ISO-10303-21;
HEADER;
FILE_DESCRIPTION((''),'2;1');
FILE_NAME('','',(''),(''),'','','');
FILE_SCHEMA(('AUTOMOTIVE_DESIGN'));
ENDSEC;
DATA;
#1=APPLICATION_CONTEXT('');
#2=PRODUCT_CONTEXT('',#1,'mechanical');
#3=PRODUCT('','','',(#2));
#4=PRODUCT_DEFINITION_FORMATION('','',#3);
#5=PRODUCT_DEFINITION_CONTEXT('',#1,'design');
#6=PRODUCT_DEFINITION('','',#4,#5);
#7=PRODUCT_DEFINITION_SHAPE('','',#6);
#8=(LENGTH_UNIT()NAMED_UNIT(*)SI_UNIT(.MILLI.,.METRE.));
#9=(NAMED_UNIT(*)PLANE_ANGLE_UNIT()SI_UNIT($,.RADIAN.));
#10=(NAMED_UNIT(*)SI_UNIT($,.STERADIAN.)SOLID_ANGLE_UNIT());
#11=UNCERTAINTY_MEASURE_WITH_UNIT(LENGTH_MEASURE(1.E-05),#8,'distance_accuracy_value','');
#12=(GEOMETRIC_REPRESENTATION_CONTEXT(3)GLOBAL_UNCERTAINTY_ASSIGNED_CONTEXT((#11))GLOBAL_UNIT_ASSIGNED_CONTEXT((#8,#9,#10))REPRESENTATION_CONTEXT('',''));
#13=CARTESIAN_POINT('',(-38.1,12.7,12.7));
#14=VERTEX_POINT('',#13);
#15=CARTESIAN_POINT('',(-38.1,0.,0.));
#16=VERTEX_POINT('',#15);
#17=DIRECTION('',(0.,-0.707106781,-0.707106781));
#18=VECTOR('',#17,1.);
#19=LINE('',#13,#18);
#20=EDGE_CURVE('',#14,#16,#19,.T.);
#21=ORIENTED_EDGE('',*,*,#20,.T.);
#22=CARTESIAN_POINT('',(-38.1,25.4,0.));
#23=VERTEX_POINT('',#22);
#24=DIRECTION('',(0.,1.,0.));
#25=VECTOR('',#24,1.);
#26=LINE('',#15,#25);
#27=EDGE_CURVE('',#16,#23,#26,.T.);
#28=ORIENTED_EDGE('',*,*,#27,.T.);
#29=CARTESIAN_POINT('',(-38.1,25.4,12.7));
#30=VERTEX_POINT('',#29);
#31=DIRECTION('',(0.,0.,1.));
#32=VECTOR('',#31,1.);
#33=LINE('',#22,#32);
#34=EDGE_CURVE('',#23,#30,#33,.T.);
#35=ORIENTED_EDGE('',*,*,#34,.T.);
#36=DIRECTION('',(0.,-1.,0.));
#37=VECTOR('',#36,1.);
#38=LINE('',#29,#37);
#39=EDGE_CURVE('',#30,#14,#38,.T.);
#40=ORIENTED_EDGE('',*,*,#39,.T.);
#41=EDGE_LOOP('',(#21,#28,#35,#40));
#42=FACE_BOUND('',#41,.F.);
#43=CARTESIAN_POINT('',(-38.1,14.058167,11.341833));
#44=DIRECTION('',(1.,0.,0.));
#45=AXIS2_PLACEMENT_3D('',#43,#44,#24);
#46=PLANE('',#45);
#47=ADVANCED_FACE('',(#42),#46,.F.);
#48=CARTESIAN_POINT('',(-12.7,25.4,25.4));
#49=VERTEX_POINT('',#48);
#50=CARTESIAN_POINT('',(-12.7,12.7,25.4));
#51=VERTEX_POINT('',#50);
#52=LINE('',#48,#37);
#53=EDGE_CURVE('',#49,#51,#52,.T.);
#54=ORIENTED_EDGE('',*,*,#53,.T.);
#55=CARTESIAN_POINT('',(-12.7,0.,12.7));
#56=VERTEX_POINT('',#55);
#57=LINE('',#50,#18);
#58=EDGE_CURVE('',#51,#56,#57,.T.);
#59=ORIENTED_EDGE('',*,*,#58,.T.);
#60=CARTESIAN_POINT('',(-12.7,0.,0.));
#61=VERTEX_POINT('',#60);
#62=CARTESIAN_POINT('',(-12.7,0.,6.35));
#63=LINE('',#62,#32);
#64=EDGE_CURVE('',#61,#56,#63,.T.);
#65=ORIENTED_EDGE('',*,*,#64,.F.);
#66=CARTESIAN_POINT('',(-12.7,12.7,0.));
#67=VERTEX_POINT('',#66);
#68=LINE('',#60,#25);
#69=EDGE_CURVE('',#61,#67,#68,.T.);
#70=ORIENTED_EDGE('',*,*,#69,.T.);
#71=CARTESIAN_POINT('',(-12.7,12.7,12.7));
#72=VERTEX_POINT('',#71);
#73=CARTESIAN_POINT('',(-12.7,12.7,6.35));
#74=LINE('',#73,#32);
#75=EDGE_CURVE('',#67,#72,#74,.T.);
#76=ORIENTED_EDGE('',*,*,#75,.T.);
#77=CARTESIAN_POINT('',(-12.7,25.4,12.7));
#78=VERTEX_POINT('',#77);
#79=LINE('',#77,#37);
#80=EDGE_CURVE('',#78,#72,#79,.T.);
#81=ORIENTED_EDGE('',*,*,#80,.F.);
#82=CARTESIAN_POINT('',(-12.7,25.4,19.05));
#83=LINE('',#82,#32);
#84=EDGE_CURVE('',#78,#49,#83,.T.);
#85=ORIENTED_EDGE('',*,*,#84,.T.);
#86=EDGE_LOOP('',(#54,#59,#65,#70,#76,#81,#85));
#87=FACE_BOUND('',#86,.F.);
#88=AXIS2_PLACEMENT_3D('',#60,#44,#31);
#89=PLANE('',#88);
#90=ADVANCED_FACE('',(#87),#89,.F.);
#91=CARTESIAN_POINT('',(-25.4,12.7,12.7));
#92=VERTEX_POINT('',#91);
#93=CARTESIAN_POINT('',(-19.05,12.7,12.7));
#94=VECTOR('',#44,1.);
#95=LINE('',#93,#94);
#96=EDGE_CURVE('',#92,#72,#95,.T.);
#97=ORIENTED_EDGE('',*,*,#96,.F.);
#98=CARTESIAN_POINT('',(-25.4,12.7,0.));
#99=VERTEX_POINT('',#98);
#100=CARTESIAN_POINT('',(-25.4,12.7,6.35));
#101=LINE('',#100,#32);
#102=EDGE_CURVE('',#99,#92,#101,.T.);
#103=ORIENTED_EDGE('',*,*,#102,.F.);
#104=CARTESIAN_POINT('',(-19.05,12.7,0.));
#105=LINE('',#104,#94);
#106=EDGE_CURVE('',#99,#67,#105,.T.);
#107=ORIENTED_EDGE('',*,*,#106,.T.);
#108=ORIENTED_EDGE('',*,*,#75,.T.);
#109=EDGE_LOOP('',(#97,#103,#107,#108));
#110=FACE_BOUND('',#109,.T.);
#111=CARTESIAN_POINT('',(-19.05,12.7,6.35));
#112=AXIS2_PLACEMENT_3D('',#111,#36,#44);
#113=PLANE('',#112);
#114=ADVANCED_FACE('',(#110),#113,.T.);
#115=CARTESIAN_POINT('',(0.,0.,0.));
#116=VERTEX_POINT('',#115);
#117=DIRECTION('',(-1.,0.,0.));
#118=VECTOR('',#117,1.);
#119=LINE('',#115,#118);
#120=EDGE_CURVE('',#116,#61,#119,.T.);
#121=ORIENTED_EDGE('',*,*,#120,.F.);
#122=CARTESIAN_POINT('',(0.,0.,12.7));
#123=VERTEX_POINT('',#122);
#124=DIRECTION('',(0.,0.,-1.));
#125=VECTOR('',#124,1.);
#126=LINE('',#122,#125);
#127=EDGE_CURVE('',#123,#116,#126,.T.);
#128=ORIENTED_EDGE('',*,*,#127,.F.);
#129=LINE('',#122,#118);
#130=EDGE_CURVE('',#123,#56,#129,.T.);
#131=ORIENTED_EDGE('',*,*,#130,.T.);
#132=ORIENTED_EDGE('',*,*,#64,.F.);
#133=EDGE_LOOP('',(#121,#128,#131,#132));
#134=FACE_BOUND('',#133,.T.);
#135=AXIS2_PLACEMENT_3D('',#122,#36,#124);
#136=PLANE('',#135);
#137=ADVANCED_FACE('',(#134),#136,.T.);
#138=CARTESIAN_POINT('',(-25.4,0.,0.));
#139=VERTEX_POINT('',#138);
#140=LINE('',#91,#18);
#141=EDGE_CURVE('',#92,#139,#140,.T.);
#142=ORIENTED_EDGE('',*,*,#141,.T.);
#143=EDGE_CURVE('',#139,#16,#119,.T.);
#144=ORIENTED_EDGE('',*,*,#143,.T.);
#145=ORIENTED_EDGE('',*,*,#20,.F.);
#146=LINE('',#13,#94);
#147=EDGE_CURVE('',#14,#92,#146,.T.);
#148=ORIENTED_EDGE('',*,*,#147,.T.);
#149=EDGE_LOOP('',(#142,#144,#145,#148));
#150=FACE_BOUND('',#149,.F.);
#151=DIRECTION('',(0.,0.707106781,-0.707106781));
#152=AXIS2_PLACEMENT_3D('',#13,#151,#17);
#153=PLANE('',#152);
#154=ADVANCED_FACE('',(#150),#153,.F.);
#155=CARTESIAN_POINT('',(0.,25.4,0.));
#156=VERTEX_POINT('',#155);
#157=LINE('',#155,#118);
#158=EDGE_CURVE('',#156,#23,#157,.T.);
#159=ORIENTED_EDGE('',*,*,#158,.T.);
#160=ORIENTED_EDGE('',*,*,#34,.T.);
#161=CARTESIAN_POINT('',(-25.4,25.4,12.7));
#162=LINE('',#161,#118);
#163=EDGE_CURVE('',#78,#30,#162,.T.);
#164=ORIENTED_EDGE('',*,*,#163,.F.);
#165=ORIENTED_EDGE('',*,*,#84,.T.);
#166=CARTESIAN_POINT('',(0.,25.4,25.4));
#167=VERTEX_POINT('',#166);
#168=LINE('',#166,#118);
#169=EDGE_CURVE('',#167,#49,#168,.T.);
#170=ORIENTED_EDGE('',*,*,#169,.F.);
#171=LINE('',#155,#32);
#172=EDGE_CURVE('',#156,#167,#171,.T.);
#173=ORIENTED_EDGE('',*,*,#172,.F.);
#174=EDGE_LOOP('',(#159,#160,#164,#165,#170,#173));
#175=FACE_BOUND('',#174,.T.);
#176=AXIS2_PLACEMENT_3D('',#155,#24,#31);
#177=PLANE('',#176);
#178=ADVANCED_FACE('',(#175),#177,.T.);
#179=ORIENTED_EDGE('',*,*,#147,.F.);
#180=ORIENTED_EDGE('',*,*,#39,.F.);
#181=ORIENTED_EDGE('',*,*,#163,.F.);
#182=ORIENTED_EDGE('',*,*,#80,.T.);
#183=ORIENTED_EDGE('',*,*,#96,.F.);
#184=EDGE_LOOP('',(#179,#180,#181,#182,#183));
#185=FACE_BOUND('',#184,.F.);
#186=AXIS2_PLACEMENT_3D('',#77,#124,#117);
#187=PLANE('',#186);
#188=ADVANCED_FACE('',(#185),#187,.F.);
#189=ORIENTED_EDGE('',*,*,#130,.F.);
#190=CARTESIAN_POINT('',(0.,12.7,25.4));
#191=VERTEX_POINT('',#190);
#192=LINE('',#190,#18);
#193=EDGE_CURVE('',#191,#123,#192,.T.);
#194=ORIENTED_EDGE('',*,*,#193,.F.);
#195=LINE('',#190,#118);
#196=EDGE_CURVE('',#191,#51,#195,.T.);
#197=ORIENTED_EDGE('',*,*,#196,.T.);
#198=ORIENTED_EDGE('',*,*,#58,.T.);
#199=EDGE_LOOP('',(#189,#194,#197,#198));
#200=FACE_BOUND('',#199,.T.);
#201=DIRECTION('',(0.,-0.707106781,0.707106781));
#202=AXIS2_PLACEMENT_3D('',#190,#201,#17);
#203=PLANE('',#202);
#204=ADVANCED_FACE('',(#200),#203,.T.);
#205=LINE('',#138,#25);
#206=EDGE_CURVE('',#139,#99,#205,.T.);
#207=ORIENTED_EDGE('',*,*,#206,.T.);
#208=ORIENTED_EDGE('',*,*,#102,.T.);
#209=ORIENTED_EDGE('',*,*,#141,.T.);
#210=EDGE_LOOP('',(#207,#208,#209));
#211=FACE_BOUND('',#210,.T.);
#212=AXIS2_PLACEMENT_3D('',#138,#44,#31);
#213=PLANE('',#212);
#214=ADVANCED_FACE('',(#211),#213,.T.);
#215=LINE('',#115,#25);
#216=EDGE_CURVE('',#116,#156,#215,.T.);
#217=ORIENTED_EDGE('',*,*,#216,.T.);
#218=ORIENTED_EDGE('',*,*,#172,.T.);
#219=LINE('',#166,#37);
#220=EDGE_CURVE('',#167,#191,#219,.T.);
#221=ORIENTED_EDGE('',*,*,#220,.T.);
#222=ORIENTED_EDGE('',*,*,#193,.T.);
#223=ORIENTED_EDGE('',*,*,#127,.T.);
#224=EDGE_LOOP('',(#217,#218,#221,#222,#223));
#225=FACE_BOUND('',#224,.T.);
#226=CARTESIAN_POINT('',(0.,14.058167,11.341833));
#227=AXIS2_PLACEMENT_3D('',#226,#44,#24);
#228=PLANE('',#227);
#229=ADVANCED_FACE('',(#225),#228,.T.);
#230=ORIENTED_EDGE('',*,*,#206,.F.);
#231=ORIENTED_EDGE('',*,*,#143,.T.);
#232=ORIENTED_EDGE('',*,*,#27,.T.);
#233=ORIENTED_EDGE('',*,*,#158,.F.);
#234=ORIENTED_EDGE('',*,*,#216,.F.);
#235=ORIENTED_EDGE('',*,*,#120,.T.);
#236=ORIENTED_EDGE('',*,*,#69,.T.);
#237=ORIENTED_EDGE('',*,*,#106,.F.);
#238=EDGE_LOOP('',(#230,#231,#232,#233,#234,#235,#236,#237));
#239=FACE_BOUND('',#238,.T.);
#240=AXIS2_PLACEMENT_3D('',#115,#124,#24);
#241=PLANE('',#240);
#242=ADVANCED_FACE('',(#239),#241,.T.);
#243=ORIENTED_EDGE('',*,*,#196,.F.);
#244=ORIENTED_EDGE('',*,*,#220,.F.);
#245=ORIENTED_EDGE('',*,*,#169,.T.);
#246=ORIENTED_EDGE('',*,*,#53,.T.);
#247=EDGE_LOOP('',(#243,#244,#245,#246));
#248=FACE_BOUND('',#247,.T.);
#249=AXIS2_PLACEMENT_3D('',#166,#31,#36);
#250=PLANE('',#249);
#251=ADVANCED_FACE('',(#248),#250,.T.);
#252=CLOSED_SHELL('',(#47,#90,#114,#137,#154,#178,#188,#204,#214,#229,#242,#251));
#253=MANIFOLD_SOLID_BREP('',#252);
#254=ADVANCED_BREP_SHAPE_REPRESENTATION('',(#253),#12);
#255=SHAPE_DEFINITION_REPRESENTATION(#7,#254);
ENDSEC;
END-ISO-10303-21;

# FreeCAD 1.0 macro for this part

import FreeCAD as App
import Part
import Sketcher
Q = App.Units.Quantity

doc = App.newDocument("Part")
body = doc.addObject("PartDesign::Body", "Body")

# Sketch on YZ plane
sketch1 = body.newObject("Sketcher::SketchObject", "Sketch")
sketch1.AttachmentSupport = (doc.getObject("YZ_Plane"), [""])
sketch1.MapMode = "FlatFace"
sketch1.addGeometry(Part.LineSegment(App.Vector(0, 13, 0), App.Vector(0, 0, 0)), False)
sketch1.addGeometry(Part.LineSegment(App.Vector(0, 0, 0), App.Vector(25, 0, 0)), False)
sketch1.addGeometry(Part.LineSegment(App.Vector(25, 0, 0), App.Vector(25, 25, 0)), False)
sketch1.addGeometry(Part.LineSegment(App.Vector(25, 25, 0), App.Vector(13, 25, 0)), False)
sketch1.addGeometry(Part.LineSegment(App.Vector(13, 25, 0), App.Vector(0, 13, 0)), False)
sketch1.addConstraint(Sketcher.Constraint("Coincident", 0, 2, 1, 1))
sketch1.addConstraint(Sketcher.Constraint("Coincident", 1, 2, 2, 1))
sketch1.addConstraint(Sketcher.Constraint("Coincident", 2, 2, 3, 1))
sketch1.addConstraint(Sketcher.Constraint("Coincident", 3, 2, 4, 1))
sketch1.addConstraint(Sketcher.Constraint("Coincident", 4, 2, 0, 1))
sketch1.addConstraint(Sketcher.Constraint("Vertical", 0))
sketch1.addConstraint(Sketcher.Constraint("Horizontal", 1))
sketch1.addConstraint(Sketcher.Constraint("Vertical", 2))
sketch1.addConstraint(Sketcher.Constraint("Horizontal", 3))
sketch1.addConstraint(Sketcher.Constraint("Coincident", 0, 2, -1, 1))
sketch1.addConstraint(Sketcher.Constraint("Equal", 3, 0))
sketch1.addConstraint(Sketcher.Constraint("Equal", 1, 2))
sketch1.addConstraint(Sketcher.Constraint("DistanceX", 1, 1, 1, 2, Q("1 in")))
sketch1.addConstraint(Sketcher.Constraint("DistanceX", 3, 2, 3, 1, Q("0.5 in")))
pad1 = body.newObject("PartDesign::Pad", "Pad")
pad1.Profile = sketch1
pad1.Length = Q("1.5 in")
pad1.Reversed = True

# Sketch on XZ plane
sketch2 = body.newObject("Sketcher::SketchObject", "Sketch001")
sketch2.AttachmentSupport = (doc.getObject("XZ_Plane"), [""])
sketch2.MapMode = "FlatFace"
sketch2.AttachmentOffset = App.Placement(App.Vector(0, 0, -1 * 25.4), App.Rotation())
sketch2.addGeometry(Part.LineSegment(App.Vector(-13, 25, 0), App.Vector(-13, 13, 0)), False)
sketch2.addGeometry(Part.LineSegment(App.Vector(-13, 13, 0), App.Vector(-38, 13, 0)), False)
sketch2.addGeometry(Part.LineSegment(App.Vector(-38, 13, 0), App.Vector(-38, 25, 0)), False)
sketch2.addGeometry(Part.LineSegment(App.Vector(-38, 25, 0), App.Vector(-13, 25, 0)), False)
sketch2.addConstraint(Sketcher.Constraint("Coincident", 0, 2, 1, 1))
sketch2.addConstraint(Sketcher.Constraint("Coincident", 1, 2, 2, 1))
sketch2.addConstraint(Sketcher.Constraint("Coincident", 2, 2, 3, 1))
sketch2.addConstraint(Sketcher.Constraint("Coincident", 3, 2, 0, 1))
sketch2.addConstraint(Sketcher.Constraint("Vertical", 0))
sketch2.addConstraint(Sketcher.Constraint("Horizontal", 1))
sketch2.addConstraint(Sketcher.Constraint("Vertical", 2))
sketch2.addConstraint(Sketcher.Constraint("Horizontal", 3))
sketch2.addConstraint(Sketcher.Constraint("DistanceX", 1, 2, 1, 1, Q("1 in")))
sketch2.addConstraint(Sketcher.Constraint("DistanceY", 0, 2, 0, 1, Q("0.5 in")))
sketch2.addConstraint(Sketcher.Constraint("DistanceY", -1, 1, 2, 2, Q("1 in")))
sketch2.addConstraint(Sketcher.Constraint("DistanceX", 0, 2, -1, 1, Q("0.5 in")))
pocket1 = body.newObject("PartDesign::Pocket", "Pocket")
pocket1.Profile = sketch2
pocket1.Length = Q("1 in")
pocket1.Reversed = True

# Sketch on XZ plane
sketch3 = body.newObject("Sketcher::SketchObject", "Sketch002")
sketch3.AttachmentSupport = (doc.getObject("XZ_Plane"), [""])
sketch3.MapMode = "FlatFace"
sketch3.addGeometry(Part.LineSegment(App.Vector(-25, 13, 0), App.Vector(-25, 0, 0)), False)
sketch3.addGeometry(Part.LineSegment(App.Vector(-25, 0, 0), App.Vector(-13, 0, 0)), False)
sketch3.addGeometry(Part.LineSegment(App.Vector(-13, 0, 0), App.Vector(-13, 13, 0)), False)
sketch3.addGeometry(Part.LineSegment(App.Vector(-13, 13, 0), App.Vector(-25, 13, 0)), False)
sketch3.addConstraint(Sketcher.Constraint("Coincident", 0, 2, 1, 1))
sketch3.addConstraint(Sketcher.Constraint("Coincident", 1, 2, 2, 1))
sketch3.addConstraint(Sketcher.Constraint("Coincident", 2, 2, 3, 1))
sketch3.addConstraint(Sketcher.Constraint("Coincident", 3, 2, 0, 1))
sketch3.addConstraint(Sketcher.Constraint("Vertical", 0))
sketch3.addConstraint(Sketcher.Constraint("Horizontal", 1))
sketch3.addConstraint(Sketcher.Constraint("Vertical", 2))
sketch3.addConstraint(Sketcher.Constraint("Horizontal", 3))
sketch3.addConstraint(Sketcher.Constraint("PointOnObject", 0, 2, -1))
sketch3.addConstraint(Sketcher.Constraint("Equal", 3, 0))
sketch3.addConstraint(Sketcher.Constraint("DistanceX", 1, 1, 1, 2, Q("0.5 in")))
sketch3.addConstraint(Sketcher.Constraint("DistanceX", 0, 2, -1, 1, Q("1 in")))
pocket2 = body.newObject("PartDesign::Pocket", "Pocket001")
pocket2.Profile = sketch3
pocket2.Length = Q("0.5 in")

# Sketch on YZ plane
sketch4 = body.newObject("Sketcher::SketchObject", "Sketch003")
sketch4.AttachmentSupport = (doc.getObject("YZ_Plane"), [""])
sketch4.MapMode = "FlatFace"
sketch4.AttachmentOffset = App.Placement(App.Vector(0, 0, -1.5 * 25.4), App.Rotation())
sketch4.addGeometry(Part.LineSegment(App.Vector(13, 13, 0), App.Vector(0, 0, 0)), False)
sketch4.addGeometry(Part.LineSegment(App.Vector(0, 0, 0), App.Vector(0, 13, 0)), False)
sketch4.addGeometry(Part.LineSegment(App.Vector(0, 13, 0), App.Vector(13, 13, 0)), False)
sketch4.addConstraint(Sketcher.Constraint("Coincident", 0, 2, 1, 1))
sketch4.addConstraint(Sketcher.Constraint("Coincident", 1, 2, 2, 1))
sketch4.addConstraint(Sketcher.Constraint("Coincident", 2, 2, 0, 1))
sketch4.addConstraint(Sketcher.Constraint("Vertical", 1))
sketch4.addConstraint(Sketcher.Constraint("Horizontal", 2))
sketch4.addConstraint(Sketcher.Constraint("Coincident", 0, 2, -1, 1))
sketch4.addConstraint(Sketcher.Constraint("Equal", 2, 1))
sketch4.addConstraint(Sketcher.Constraint("DistanceX", 2, 1, 2, 2, Q("0.5 in")))
pocket3 = body.newObject("PartDesign::Pocket", "Pocket002")
pocket3.Profile = sketch4
pocket3.Length = Q("0.5 in")
pocket3.Reversed = True

doc.recompute()
